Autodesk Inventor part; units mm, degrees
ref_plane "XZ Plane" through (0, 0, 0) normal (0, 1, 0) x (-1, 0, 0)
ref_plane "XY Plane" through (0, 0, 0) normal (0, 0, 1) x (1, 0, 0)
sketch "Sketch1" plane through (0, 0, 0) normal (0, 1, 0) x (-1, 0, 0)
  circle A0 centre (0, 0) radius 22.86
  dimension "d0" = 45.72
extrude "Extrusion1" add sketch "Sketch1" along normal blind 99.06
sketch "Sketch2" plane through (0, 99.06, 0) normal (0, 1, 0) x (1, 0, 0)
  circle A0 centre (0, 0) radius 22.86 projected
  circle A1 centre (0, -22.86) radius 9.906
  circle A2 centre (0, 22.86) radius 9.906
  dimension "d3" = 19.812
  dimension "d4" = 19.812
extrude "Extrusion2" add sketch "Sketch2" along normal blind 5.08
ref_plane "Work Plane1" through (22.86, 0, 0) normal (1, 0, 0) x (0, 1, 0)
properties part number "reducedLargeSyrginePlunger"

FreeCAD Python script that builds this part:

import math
import FreeCAD as App
import Part
import Sketcher

V = App.Vector
Q = App.Units.Quantity

doc = App.newDocument("Part")
body = doc.addObject("PartDesign::Body", "Body")

sketch1 = doc.addObject("Sketcher::SketchObject", "Sketch")
body.addObject(sketch1)
sketch1.AttachmentSupport = (doc.XZ_Plane, [""])
sketch1.MapMode = "FlatFace"
sketch1.addGeometry(Part.Circle(V(0, 0, 0), V(0, 0, 1), 23), False)
sketch1.addConstraint(Sketcher.Constraint("Coincident", 0, 3, -1, 1))
sketch1.addConstraint(Sketcher.Constraint("Diameter", 0, Q("1.8 in")))
pad1 = doc.addObject("PartDesign::Pad", "Pad")
body.addObject(pad1)
pad1.Profile = sketch1
pad1.Length = Q("3.9 in")
pad1.Reversed = True

sketch2 = doc.addObject("Sketcher::SketchObject", "Sketch001")
body.addObject(sketch2)
sketch2.AttachmentSupport = (doc.XZ_Plane, [""])
sketch2.MapMode = "FlatFace"
sketch2.AttachmentOffset = App.Placement(V(0, 0, -3.9 * 25.4), App.Rotation())
sketch2.addGeometry(Part.ArcOfCircle(Part.Circle(V(0, 0, 0), V(0, 0, 1), 23), math.radians(-65), math.radians(65)), False)
sketch2.addGeometry(Part.ArcOfCircle(Part.Circle(V(0, -23, 0), V(0, 0, 1), 10), math.radians(167), math.radians(373)), False)
sketch2.addGeometry(Part.ArcOfCircle(Part.Circle(V(0, 0, 0), V(0, 0, 1), 23), math.radians(115), math.radians(245)), False)
sketch2.addGeometry(Part.ArcOfCircle(Part.Circle(V(0, 23, 0), V(0, 0, 1), 10), math.radians(-13), math.radians(193)), False)
sketch2.addConstraint(Sketcher.Constraint("Coincident", 0, 1, 1, 2))
sketch2.addConstraint(Sketcher.Constraint("Coincident", 1, 1, 2, 2))
sketch2.addConstraint(Sketcher.Constraint("Coincident", 2, 1, 3, 2))
sketch2.addConstraint(Sketcher.Constraint("Coincident", 3, 1, 0, 2))
sketch2.addConstraint(Sketcher.Constraint("Coincident", 0, 3, -1, 1))
sketch2.addConstraint(Sketcher.Constraint("Coincident", 2, 3, -1, 1))
sketch2.addConstraint(Sketcher.Constraint("Equal", 0, 2))
sketch2.addConstraint(Sketcher.Constraint("Equal", 1, 3))
sketch2.addConstraint(Sketcher.Constraint("Symmetric", 1, 3, 3, 3, -1, 1))
sketch2.addConstraint(Sketcher.Constraint("PointOnObject", 1, 3, -2))
sketch2.addConstraint(Sketcher.Constraint("Radius", 1, Q("0.39 in")))
sketch2.addConstraint(Sketcher.Constraint("Radius", 0, Q("0.9 in")))
sketch2.addConstraint(Sketcher.Constraint("DistanceY", 1, 3, -1, 1, Q("0.9 in")))
pad2 = doc.addObject("PartDesign::Pad", "Pad001")
body.addObject(pad2)
pad2.Profile = sketch2
pad2.Length = Q("0.2 in")
pad2.Reversed = True

doc.recompute()
